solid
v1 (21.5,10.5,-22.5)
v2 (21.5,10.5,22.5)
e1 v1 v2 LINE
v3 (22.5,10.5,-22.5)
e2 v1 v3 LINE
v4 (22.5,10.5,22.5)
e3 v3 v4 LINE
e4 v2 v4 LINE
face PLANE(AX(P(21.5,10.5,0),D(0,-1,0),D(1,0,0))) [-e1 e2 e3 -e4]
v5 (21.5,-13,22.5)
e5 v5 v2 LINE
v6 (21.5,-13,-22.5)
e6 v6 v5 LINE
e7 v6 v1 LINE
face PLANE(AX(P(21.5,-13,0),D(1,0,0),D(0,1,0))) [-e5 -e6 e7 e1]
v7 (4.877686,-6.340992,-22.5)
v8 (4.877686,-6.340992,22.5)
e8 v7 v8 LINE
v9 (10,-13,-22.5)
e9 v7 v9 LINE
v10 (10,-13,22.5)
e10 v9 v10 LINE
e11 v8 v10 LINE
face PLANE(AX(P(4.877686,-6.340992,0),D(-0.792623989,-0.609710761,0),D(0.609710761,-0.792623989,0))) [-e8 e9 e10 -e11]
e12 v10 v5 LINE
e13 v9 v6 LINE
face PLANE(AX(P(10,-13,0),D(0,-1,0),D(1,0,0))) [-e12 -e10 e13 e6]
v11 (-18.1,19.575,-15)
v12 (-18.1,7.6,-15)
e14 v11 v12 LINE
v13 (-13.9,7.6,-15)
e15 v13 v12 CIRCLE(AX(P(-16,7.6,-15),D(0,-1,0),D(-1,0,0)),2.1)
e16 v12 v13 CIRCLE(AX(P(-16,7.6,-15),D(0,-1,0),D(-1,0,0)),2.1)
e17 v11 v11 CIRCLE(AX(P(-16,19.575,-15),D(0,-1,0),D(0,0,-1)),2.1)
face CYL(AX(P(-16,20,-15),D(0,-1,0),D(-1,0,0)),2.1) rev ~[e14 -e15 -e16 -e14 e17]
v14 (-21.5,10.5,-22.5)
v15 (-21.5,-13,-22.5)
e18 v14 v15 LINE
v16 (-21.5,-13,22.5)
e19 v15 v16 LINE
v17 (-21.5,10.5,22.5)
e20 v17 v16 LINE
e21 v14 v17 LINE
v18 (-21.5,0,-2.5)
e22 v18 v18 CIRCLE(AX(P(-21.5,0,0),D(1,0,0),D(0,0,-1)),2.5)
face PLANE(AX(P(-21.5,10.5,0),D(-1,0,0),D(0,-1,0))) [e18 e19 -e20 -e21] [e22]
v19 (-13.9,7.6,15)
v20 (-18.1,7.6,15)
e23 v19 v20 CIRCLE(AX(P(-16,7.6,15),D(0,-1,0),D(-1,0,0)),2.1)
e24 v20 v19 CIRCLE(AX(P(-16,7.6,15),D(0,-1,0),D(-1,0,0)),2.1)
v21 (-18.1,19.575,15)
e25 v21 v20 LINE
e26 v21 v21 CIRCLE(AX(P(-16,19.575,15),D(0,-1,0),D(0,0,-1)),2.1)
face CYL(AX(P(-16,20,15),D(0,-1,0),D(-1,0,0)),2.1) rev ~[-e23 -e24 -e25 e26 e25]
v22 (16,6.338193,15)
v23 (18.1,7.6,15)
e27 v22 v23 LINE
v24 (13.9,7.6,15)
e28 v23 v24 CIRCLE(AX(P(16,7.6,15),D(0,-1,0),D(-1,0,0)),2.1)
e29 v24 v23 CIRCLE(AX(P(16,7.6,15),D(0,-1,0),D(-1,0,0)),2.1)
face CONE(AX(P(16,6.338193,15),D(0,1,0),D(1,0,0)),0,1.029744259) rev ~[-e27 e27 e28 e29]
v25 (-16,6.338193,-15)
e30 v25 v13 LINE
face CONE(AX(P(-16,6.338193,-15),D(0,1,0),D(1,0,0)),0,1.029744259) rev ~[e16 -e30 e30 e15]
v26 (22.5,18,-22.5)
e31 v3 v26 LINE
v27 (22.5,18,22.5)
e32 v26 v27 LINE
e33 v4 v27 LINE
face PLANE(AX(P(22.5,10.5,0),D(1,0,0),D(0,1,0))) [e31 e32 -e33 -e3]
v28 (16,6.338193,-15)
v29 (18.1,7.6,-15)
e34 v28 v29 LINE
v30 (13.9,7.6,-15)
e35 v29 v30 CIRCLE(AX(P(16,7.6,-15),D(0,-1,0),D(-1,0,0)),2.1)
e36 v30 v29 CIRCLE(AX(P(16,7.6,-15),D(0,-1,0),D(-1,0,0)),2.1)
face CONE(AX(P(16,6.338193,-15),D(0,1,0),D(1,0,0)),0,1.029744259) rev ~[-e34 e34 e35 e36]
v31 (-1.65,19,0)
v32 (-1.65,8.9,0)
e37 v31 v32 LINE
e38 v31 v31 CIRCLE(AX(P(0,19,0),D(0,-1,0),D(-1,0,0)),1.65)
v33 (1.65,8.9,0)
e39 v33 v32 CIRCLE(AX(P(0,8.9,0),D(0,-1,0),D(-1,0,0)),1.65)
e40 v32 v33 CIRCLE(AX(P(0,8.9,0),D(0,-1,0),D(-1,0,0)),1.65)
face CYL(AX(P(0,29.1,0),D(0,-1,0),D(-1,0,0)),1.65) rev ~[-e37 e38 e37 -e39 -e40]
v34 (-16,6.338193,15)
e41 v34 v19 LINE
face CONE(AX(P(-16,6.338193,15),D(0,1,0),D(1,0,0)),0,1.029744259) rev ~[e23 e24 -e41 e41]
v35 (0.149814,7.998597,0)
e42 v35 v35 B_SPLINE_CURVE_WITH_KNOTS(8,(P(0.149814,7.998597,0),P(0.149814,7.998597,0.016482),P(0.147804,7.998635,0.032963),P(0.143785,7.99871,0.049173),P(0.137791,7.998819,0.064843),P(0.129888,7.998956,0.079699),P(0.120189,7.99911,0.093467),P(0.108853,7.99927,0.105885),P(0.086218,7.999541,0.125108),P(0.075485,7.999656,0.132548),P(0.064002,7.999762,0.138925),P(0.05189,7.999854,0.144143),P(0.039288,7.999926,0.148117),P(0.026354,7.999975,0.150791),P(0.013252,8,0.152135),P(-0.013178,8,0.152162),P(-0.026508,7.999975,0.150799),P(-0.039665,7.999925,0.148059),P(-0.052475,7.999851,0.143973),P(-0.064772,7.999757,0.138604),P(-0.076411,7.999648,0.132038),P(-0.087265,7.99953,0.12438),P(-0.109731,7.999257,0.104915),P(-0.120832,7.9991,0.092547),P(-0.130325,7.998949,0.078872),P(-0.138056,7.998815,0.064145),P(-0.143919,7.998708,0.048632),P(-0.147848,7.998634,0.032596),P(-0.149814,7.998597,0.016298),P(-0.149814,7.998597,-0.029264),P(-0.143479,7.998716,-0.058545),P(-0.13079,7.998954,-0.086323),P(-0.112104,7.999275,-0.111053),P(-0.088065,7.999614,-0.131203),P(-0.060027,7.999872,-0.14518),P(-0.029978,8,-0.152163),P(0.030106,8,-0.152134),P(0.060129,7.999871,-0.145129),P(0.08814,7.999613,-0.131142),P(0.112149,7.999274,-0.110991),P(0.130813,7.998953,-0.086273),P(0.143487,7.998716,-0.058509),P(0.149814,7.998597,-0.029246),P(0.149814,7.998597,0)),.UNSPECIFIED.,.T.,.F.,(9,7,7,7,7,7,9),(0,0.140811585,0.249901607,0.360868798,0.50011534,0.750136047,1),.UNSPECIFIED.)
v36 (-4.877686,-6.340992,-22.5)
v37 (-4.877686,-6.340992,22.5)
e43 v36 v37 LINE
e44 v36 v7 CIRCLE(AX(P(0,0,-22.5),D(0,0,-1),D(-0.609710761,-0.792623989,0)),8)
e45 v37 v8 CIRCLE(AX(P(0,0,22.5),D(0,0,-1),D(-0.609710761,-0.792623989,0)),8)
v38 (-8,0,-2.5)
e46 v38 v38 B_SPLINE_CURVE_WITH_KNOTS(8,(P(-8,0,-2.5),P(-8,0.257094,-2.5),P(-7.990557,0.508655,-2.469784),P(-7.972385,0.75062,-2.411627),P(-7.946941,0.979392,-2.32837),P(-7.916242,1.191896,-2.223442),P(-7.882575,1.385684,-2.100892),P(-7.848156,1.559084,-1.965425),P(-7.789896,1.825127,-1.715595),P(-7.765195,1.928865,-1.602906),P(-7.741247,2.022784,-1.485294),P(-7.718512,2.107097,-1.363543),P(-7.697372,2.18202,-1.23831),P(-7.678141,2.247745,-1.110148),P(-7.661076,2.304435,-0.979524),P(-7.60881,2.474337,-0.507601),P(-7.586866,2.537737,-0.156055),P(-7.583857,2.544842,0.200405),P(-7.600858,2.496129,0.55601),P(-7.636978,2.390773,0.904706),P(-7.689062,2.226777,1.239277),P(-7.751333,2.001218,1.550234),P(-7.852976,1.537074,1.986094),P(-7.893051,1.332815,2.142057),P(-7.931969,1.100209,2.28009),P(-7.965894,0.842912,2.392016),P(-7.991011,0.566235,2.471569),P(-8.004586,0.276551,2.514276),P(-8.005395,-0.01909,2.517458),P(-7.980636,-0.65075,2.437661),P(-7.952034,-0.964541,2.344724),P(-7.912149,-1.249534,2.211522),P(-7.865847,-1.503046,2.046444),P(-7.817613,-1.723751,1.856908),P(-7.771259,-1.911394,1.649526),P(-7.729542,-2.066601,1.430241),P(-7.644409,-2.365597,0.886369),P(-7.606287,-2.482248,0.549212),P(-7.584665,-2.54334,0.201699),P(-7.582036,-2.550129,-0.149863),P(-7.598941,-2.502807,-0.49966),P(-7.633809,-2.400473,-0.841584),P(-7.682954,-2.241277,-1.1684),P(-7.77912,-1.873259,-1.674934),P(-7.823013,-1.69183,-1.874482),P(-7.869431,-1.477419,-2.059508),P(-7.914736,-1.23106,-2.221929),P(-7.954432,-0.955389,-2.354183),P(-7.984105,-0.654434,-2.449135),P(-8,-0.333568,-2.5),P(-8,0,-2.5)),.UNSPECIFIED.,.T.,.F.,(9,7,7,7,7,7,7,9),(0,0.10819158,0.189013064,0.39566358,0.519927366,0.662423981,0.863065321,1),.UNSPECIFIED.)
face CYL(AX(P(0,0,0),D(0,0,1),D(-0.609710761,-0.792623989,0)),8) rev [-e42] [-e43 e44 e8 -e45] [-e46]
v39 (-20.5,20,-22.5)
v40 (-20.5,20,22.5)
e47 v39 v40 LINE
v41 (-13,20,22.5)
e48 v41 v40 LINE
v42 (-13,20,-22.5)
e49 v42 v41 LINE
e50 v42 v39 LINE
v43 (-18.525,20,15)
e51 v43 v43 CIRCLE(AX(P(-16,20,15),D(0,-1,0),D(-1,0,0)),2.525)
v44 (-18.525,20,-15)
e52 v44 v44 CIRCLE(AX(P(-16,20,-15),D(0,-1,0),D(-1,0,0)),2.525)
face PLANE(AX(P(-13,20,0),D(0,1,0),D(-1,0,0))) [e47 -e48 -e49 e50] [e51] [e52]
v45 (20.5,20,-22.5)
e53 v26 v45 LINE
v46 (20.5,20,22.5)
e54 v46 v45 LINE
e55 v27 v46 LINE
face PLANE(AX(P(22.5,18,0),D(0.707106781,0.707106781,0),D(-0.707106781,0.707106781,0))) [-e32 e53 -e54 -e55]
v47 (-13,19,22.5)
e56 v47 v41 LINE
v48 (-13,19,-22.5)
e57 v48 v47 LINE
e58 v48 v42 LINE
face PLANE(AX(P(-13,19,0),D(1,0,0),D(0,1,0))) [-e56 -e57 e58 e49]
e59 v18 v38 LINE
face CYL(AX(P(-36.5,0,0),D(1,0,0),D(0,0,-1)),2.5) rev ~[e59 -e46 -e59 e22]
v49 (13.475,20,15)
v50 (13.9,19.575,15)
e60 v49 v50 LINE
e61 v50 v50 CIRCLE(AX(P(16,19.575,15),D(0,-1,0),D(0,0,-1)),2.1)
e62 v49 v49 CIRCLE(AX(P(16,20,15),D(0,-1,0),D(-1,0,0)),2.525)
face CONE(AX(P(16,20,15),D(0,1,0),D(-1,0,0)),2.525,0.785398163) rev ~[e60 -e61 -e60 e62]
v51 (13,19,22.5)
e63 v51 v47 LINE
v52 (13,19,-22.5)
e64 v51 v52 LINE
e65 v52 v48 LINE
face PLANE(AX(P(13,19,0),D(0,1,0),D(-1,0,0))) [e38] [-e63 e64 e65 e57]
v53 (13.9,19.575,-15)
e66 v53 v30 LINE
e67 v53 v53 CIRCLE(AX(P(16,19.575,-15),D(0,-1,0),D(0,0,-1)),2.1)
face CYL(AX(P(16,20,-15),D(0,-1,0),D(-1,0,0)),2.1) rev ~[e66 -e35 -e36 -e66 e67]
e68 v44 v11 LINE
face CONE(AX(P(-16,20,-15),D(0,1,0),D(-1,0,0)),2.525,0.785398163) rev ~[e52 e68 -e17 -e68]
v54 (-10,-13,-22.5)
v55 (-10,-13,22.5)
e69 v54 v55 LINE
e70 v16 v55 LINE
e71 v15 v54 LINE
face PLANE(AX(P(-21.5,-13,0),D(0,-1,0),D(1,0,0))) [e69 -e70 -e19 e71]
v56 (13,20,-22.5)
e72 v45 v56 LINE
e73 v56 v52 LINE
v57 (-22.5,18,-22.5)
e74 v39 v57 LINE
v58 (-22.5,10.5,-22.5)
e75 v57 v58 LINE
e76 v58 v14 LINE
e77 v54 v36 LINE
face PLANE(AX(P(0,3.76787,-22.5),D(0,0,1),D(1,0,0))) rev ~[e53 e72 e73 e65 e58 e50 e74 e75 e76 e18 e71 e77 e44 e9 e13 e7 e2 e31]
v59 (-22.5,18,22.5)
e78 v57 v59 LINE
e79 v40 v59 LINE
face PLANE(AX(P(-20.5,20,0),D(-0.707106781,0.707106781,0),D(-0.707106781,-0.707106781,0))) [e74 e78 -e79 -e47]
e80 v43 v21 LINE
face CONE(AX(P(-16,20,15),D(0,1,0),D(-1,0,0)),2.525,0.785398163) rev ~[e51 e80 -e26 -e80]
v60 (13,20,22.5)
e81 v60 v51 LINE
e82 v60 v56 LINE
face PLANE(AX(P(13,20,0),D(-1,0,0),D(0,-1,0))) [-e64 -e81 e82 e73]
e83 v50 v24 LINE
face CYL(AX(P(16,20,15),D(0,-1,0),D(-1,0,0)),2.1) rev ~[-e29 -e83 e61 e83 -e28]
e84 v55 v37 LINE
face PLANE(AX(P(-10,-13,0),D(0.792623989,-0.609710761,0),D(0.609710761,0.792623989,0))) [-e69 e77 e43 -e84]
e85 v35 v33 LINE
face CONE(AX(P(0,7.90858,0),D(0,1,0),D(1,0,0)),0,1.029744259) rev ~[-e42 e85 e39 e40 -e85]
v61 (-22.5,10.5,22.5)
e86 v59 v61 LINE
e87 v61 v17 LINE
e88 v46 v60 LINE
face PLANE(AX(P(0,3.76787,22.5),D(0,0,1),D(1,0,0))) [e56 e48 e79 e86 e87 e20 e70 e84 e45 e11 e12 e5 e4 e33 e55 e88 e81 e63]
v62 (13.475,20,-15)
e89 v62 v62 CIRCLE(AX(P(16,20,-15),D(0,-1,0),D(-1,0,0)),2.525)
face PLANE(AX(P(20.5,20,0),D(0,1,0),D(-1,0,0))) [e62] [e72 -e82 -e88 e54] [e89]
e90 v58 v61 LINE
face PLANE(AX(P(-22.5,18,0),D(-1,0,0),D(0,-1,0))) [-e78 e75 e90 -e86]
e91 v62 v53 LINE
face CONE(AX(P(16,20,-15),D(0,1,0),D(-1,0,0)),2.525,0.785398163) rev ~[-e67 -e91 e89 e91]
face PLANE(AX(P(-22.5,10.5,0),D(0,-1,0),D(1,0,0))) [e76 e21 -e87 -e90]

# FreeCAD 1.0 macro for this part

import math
import FreeCAD as App
import Part
import Sketcher

V = App.Vector

doc = App.newDocument("Part")
body = doc.addObject("PartDesign::Body", "Body")

# Sketch on XY plane
sketch1 = doc.addObject("Sketcher::SketchObject", "Sketch")
body.addObject(sketch1)
sketch1.AttachmentSupport = (doc.XY_Plane, [""])
sketch1.MapMode = "FlatFace"
sketch1.addGeometry([
    Part.LineSegment(V(13, 19, 0), V(-13, 19, 0)),  # 0
    Part.LineSegment(V(-13, 19, 0), V(-13, 20, 0)),  # 1
    Part.LineSegment(V(-13, 20, 0), V(-20.5, 20, 0)),  # 2
    Part.LineSegment(V(-20.5, 20, 0), V(-22.5, 18, 0)),  # 3
    Part.LineSegment(V(-22.5, 18, 0), V(-22.5, 10.5, 0)),  # 4
    Part.LineSegment(V(-22.5, 10.5, 0), V(-21.5, 10.5, 0)),  # 5
    Part.LineSegment(V(-21.5, 10.5, 0), V(-21.5, -13, 0)),  # 6
    Part.LineSegment(V(-21.5, -13, 0), V(-10, -13, 0)),  # 7
    Part.LineSegment(V(-10, -13, 0), V(-4.9, -6.3, 0)),  # 8
    Part.ArcOfCircle(Part.Circle(V(0, 0, 0), V(0, 0, 1), 8), math.radians(-52), math.radians(232)),  # 9
    Part.LineSegment(V(4.9, -6.3, 0), V(10, -13, 0)),  # 10
    Part.LineSegment(V(10, -13, 0), V(21.5, -13, 0)),  # 11
    Part.LineSegment(V(21.5, -13, 0), V(21.5, 10.5, 0)),  # 12
    Part.LineSegment(V(21.5, 10.5, 0), V(22.5, 10.5, 0)),  # 13
    Part.LineSegment(V(22.5, 10.5, 0), V(22.5, 18, 0)),  # 14
    Part.LineSegment(V(22.5, 18, 0), V(20.5, 20, 0)),  # 15
    Part.LineSegment(V(20.5, 20, 0), V(13, 20, 0)),  # 16
    Part.LineSegment(V(13, 20, 0), V(13, 19, 0)),  # 17
], False)
sketch1.addConstraint([
    Sketcher.Constraint("Coincident", 0, 2, 1, 1),
    Sketcher.Constraint("Coincident", 1, 2, 2, 1),
    Sketcher.Constraint("Coincident", 2, 2, 3, 1),
    Sketcher.Constraint("Coincident", 3, 2, 4, 1),
    Sketcher.Constraint("Coincident", 4, 2, 5, 1),
    Sketcher.Constraint("Coincident", 5, 2, 6, 1),
    Sketcher.Constraint("Coincident", 6, 2, 7, 1),
    Sketcher.Constraint("Coincident", 7, 2, 8, 1),
    Sketcher.Constraint("Coincident", 8, 2, 9, 2),
    Sketcher.Constraint("Coincident", 9, 1, 10, 1),
    Sketcher.Constraint("Coincident", 10, 2, 11, 1),
    Sketcher.Constraint("Coincident", 11, 2, 12, 1),
    Sketcher.Constraint("Coincident", 12, 2, 13, 1),
    Sketcher.Constraint("Coincident", 13, 2, 14, 1),
    Sketcher.Constraint("Coincident", 14, 2, 15, 1),
    Sketcher.Constraint("Coincident", 15, 2, 16, 1),
    Sketcher.Constraint("Coincident", 16, 2, 17, 1),
    Sketcher.Constraint("Coincident", 17, 2, 0, 1),
    Sketcher.Constraint("Horizontal", 0),
    Sketcher.Constraint("Vertical", 1),
    Sketcher.Constraint("Horizontal", 2),
    Sketcher.Constraint("Vertical", 4),
    Sketcher.Constraint("Horizontal", 5),
    Sketcher.Constraint("Vertical", 6),
    Sketcher.Constraint("Horizontal", 7),
    Sketcher.Constraint("Horizontal", 11),
    Sketcher.Constraint("Vertical", 12),
    Sketcher.Constraint("Horizontal", 13),
    Sketcher.Constraint("Vertical", 14),
    Sketcher.Constraint("Horizontal", 16),
    Sketcher.Constraint("Vertical", 17),
    Sketcher.Constraint("Coincident", 9, 3, -1, 1),
    Sketcher.Constraint("Symmetric", 7, 2, 10, 2, -2),
    Sketcher.Constraint("Symmetric", 5, 2, 12, 2, -2),
    Sketcher.Constraint("Symmetric", 3, 2, 14, 2, -2),
    Sketcher.Constraint("Symmetric", 2, 2, 15, 2, -2),
    Sketcher.Constraint("Perpendicular", 3, 15),
    Sketcher.Constraint("Horizontal", 8, 2, 9, 1),
    Sketcher.Constraint("Equal", 2, 16),
    Sketcher.Constraint("Equal", 13, 1),
    Sketcher.Constraint("Equal", 16, 4),
    Sketcher.Constraint("Radius", 9, 8.0),
    Sketcher.Constraint("DistanceX", 0, 2, 0, 1, 26.0),
    Sketcher.Constraint("DistanceX", 5, 1, 5, 2, 1.0),
    Sketcher.Constraint("DistanceX", 2, 2, 2, 1, 7.5),
    Sketcher.Constraint("DistanceX", 7, 1, 7, 2, 11.5),
    Sketcher.Constraint("DistanceY", 6, 2, 6, 1, 23.5),
    Sketcher.Constraint("DistanceY", -1, 1, 0, 2, 19.0),
    Sketcher.Constraint("DistanceY", -1, 1, 3, 2, 18.0),
    Sketcher.Constraint("DistanceY", 8, 2, -1, 1, 6.340992),
])
pad1 = doc.addObject("PartDesign::Pad", "Pad")
body.addObject(pad1)
pad1.Profile = sketch1
pad1.Length = 45
pad1.Midplane = True

# Sketch on XZ plane
sketch2 = doc.addObject("Sketcher::SketchObject", "Sketch001")
body.addObject(sketch2)
sketch2.AttachmentSupport = (doc.XZ_Plane, [""])
sketch2.MapMode = "FlatFace"
sketch2.AttachmentOffset = App.Placement(V(0, 0, -20), App.Rotation())
sketch2.addGeometry([
    Part.Circle(V(-16, -15, 0), V(0, 0, 1), 2.1),
    Part.Circle(V(16, -15, 0), V(0, 0, 1), 2.1),
    Part.Circle(V(-16, 15, 0), V(0, 0, 1), 2.1),
    Part.Circle(V(16, 15, 0), V(0, 0, 1), 2.1),
], False)
sketch2.addConstraint([
    Sketcher.Constraint("Equal", 0, 1),
    Sketcher.Constraint("Equal", 1, 2),
    Sketcher.Constraint("Equal", 2, 3),
    Sketcher.Constraint("Symmetric", 1, 3, 2, 3, -1, 1),
    Sketcher.Constraint("Symmetric", 0, 3, 3, 3, -1, 1),
    Sketcher.Constraint("Symmetric", 0, 3, 1, 3, -2),
    Sketcher.Constraint("Diameter", 0, 4.2),
    Sketcher.Constraint("DistanceX", 0, 3, -1, 1, 16.0),
    Sketcher.Constraint("DistanceY", 0, 3, -1, 1, 15.0),
])
doc.recompute()
hole = doc.addObject("PartDesign::Hole", "Hole")
body.addObject(hole)
hole.Profile = sketch2
hole.ThreadType = "None"
hole.Diameter = 4.2
hole.DepthType = "Dimension"
hole.Depth = 12.4
hole.DrillPoint = "Angled"
hole.DrillPointAngle = 118
hole.HoleCutType = "Countersink"
hole.HoleCutDiameter = 5.05
hole.HoleCutCountersinkAngle = 90
hole.Reversed = True

# Sketch on XZ plane
sketch3 = doc.addObject("Sketcher::SketchObject", "Sketch002")
body.addObject(sketch3)
sketch3.AttachmentSupport = (doc.XZ_Plane, [""])
sketch3.MapMode = "FlatFace"
sketch3.AttachmentOffset = App.Placement(V(0, 0, -19), App.Rotation())
sketch3.addGeometry(Part.Circle(V(0, 0, 0), V(0, 0, 1), 1.6), False)
sketch3.addConstraint([
    Sketcher.Constraint("Coincident", 0, 3, -1, 1),
    Sketcher.Constraint("Diameter", 0, 3.3),
])
doc.recompute()
hole2 = doc.addObject("PartDesign::Hole", "Hole001")
body.addObject(hole2)
hole2.Profile = sketch3
hole2.ThreadType = "None"
hole2.Diameter = 3.3
hole2.DepthType = "Dimension"
hole2.Depth = 10.1
hole2.DrillPoint = "Angled"
hole2.DrillPointAngle = 118
hole2.Reversed = True

# Sketch on YZ plane
sketch4 = doc.addObject("Sketcher::SketchObject", "Sketch003")
body.addObject(sketch4)
sketch4.AttachmentSupport = (doc.YZ_Plane, [""])
sketch4.MapMode = "FlatFace"
sketch4.AttachmentOffset = App.Placement(V(0, 0, -21.5), App.Rotation())
sketch4.addGeometry(Part.Circle(V(0, 0, 0), V(0, 0, 1), 2.5), False)
sketch4.addConstraint([
    Sketcher.Constraint("Coincident", 0, 3, -1, 1),
    Sketcher.Constraint("Diameter", 0, 5.0),
])
doc.recompute()
hole3 = doc.addObject("PartDesign::Hole", "Hole002")
body.addObject(hole3)
hole3.Profile = sketch4
hole3.ThreadType = "None"
hole3.Diameter = 5
hole3.DepthType = "Dimension"
hole3.Depth = 15
hole3.DrillPoint = "Angled"
hole3.DrillPointAngle = 118
hole3.Reversed = True

doc.recompute()
